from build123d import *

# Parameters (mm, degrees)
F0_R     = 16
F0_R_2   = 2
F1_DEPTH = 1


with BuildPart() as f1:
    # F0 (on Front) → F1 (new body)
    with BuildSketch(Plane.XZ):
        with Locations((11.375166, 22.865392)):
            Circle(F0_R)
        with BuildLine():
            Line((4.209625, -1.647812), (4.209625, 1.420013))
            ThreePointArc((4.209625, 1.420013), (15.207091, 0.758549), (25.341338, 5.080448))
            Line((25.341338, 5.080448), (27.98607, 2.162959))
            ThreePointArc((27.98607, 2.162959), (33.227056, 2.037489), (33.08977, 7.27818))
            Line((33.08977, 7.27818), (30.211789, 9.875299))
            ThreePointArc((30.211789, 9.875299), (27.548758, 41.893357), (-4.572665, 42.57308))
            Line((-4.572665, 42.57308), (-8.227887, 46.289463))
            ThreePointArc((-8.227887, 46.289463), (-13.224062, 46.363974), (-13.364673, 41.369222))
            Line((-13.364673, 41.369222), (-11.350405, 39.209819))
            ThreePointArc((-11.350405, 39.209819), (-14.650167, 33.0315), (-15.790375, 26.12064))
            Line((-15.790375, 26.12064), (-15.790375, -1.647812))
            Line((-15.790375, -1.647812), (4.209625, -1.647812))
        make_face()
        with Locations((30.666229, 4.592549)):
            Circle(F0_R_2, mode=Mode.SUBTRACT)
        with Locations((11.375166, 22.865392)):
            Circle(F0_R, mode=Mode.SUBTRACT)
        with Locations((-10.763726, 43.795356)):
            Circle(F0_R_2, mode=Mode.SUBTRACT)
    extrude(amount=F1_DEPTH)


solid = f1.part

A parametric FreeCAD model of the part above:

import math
import FreeCAD as App
import Part
import Sketcher

V = App.Vector
Q = App.Units.Quantity

doc = App.newDocument("Part")
body = doc.addObject("PartDesign::Body", "Body")

# Sketch on XZ plane
sketch1 = body.newObject("Sketcher::SketchObject", "Sketch")
sketch1.AttachmentSupport = (doc.getObject("XZ_Plane"), [""])
sketch1.MapMode = "FlatFace"
sketch1.addGeometry([
    Part.LineSegment(V(4.2, -1.6, 0), V(4.2, 1.4, 0)),  # 0
    Part.ArcOfCircle(Part.Circle(V(11.1, 24.4, 0), V(0, 0, 1), 24), math.radians(-107), math.radians(-54)),  # 1
    Part.LineSegment(V(25.3, 5.1, 0), V(28, 2.2, 0)),  # 2
    Part.ArcOfCircle(Part.Circle(V(30.7, 4.6, 0), V(0, 0, 1), 3.6), math.radians(-138), math.radians(48)),  # 3
    Part.LineSegment(V(33.1, 7.3, 0), V(30.2, 9.9, 0)),  # 4
    Part.ArcOfCircle(Part.Circle(V(11.1, 24.4, 0), V(0, 0, 1), 24), math.radians(-37), math.radians(131)),  # 5
    Part.LineSegment(V(-4.6, 42.6, 0), V(-8.2, 46.3, 0)),  # 6
    Part.ArcOfCircle(Part.Circle(V(-10.8, 43.8, 0), V(0, 0, 1), 3.6), math.radians(45), math.radians(223)),  # 7
    Part.LineSegment(V(-13.4, 41.4, 0), V(-11.4, 39.2, 0)),  # 8
    Part.ArcOfCircle(Part.Circle(V(5.7, 26.1, 0), V(0, 0, 1), 21.5), math.radians(143), math.radians(180)),  # 9
    Part.LineSegment(V(-15.8, 26.1, 0), V(-15.8, -1.6, 0)),  # 10
    Part.LineSegment(V(-15.8, -1.6, 0), V(4.2, -1.6, 0)),  # 11
    Part.Circle(V(30.7, 4.6, 0), V(0, 0, 1), 2),  # 12
    Part.Circle(V(11.4, 22.9, 0), V(0, 0, 1), 16),  # 13
    Part.Circle(V(-10.8, 43.8, 0), V(0, 0, 1), 2),  # 14
], False)
sketch1.addConstraint([
    Sketcher.Constraint("Coincident", 0, 2, 1, 1),
    Sketcher.Constraint("Coincident", 1, 2, 2, 1),
    Sketcher.Constraint("Tangent", 2, 2, 3, 1),
    Sketcher.Constraint("Tangent", 3, 2, 4, 1),
    Sketcher.Constraint("Coincident", 4, 2, 5, 1),
    Sketcher.Constraint("Coincident", 5, 2, 6, 1),
    Sketcher.Constraint("Tangent", 6, 2, 7, 1),
    Sketcher.Constraint("Tangent", 7, 2, 8, 1),
    Sketcher.Constraint("Coincident", 8, 2, 9, 1),
    Sketcher.Constraint("Tangent", 9, 2, 10, 1),
    Sketcher.Constraint("Coincident", 10, 2, 11, 1),
    Sketcher.Constraint("Coincident", 11, 2, 0, 1),
    Sketcher.Constraint("Vertical", 0),
    Sketcher.Constraint("Vertical", 10),
    Sketcher.Constraint("Horizontal", 11),
    Sketcher.Constraint("Coincident", 5, 3, 1, 3),
    Sketcher.Constraint("Coincident", 12, 3, 3, 3),
    Sketcher.Constraint("Coincident", 14, 3, 7, 3),
    Sketcher.Constraint("Equal", 1, 5),
    Sketcher.Constraint("Equal", 12, 14),
    Sketcher.Constraint("Diameter", 12, Q("4 mm")),
    Sketcher.Constraint("Diameter", 13, Q("32 mm")),
    Sketcher.Constraint("Radius", 1, Q("24.000002 mm")),
    Sketcher.Constraint("DistanceX", 11, 1, 11, 2, Q("20 mm")),
    Sketcher.Constraint("Radius", 3, Q("3.61748 mm")),
    Sketcher.Constraint("Radius", 7, Q("3.556831 mm")),
    Sketcher.Constraint("Radius", 9, Q("21.513659 mm")),
    Sketcher.Constraint("DistanceY", 13, 3, 5, 3, Q("1.541 mm")),
    Sketcher.Constraint("DistanceY", -1, 1, 4, 2, Q("9.875299 mm")),
    Sketcher.Constraint("DistanceY", 12, 3, 1, 2, Q("0.487899 mm")),
    Sketcher.Constraint("DistanceX", 2, 2, 3, 2, Q("5.1037 mm")),
    Sketcher.Constraint("DistanceX", 6, 2, 1, 3, Q("19.338698 mm")),
    Sketcher.Constraint("DistanceX", 9, 2, 7, 2, Q("2.425702 mm")),
    Sketcher.Constraint("Distance", 2, Q("3.93781 mm")),
    Sketcher.Constraint("Distance", 4, Q("3.876571 mm")),
    Sketcher.Constraint("Distance", 6, Q("5.212691 mm")),
    Sketcher.Constraint("DistanceY", 0, 1, 0, 2, Q("3.067825 mm")),
    Sketcher.Constraint("DistanceY", 10, 2, 10, 1, Q("27.768452 mm")),
    Sketcher.Constraint("DistanceX", -1, 1, 1, 3, Q("11.110811 mm")),
    Sketcher.Constraint("DistanceY", -1, 1, 5, 2, Q("42.57308 mm")),
    Sketcher.Constraint("DistanceY", -1, 1, 7, 2, Q("41.369222 mm")),
    Sketcher.Constraint("DistanceX", 14, 3, 13, 3, Q("22.138892 mm")),
])
pad1 = body.newObject("PartDesign::Pad", "Pad")
pad1.Profile = sketch1
pad1.Length = 1

doc.recompute()
